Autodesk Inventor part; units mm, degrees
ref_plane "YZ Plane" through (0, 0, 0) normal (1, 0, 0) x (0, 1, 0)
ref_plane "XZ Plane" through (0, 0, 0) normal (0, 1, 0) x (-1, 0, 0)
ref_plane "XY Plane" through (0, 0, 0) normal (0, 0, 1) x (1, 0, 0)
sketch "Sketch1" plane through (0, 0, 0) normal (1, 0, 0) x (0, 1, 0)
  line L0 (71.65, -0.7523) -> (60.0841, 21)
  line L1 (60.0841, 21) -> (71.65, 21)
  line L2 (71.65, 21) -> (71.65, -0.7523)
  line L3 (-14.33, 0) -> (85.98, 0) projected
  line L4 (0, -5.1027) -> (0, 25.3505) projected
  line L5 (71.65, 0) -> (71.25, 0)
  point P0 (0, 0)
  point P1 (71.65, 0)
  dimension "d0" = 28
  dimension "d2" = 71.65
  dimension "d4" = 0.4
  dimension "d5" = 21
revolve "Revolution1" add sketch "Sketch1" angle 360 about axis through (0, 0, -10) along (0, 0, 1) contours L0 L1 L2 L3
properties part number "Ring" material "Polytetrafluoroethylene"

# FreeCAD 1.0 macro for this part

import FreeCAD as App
import Part
import Sketcher

V = App.Vector
Q = App.Units.Quantity

doc = App.newDocument("Part")
body = doc.addObject("PartDesign::Body", "Body")

sketch1 = doc.addObject("Sketcher::SketchObject", "Sketch")
body.addObject(sketch1)
sketch1.AttachmentSupport = (doc.YZ_Plane, [""])
sketch1.MapMode = "FlatFace"
sketch1.addGeometry([
    Part.LineSegment(V(60.08, 21, 0), V(71.25, 0, 0)),
    Part.LineSegment(V(71.25, 0, 0), V(71.65, 0, 0)),
    Part.LineSegment(V(71.65, 0, 0), V(71.65, 21, 0)),
    Part.LineSegment(V(71.65, 21, 0), V(60.08, 21, 0)),
], False)
sketch1.addConstraint([
    Sketcher.Constraint("Coincident", 0, 2, 1, 1),
    Sketcher.Constraint("Coincident", 1, 2, 2, 1),
    Sketcher.Constraint("Coincident", 2, 2, 3, 1),
    Sketcher.Constraint("Coincident", 3, 2, 0, 1),
    Sketcher.Constraint("Horizontal", 1),
    Sketcher.Constraint("Vertical", 2),
    Sketcher.Constraint("Horizontal", 3),
    Sketcher.Constraint("PointOnObject", 0, 2, -1),
    Sketcher.Constraint("DistanceY", 2, 1, 2, 2, Q("21 mm")),
    Sketcher.Constraint("DistanceX", 1, 1, 1, 2, Q("0.4 mm")),
    Sketcher.Constraint("DistanceX", -1, 1, 1, 2, Q("71.65 mm")),
    Sketcher.Constraint("Angle", 0, Q("-62 deg")),
])
revolution = doc.addObject("PartDesign::Revolution", "Revolution")
body.addObject(revolution)
revolution.Profile = sketch1
revolution.ReferenceAxis = (sketch1, ["V_Axis"])
revolution.Angle = 360

doc.recompute()
